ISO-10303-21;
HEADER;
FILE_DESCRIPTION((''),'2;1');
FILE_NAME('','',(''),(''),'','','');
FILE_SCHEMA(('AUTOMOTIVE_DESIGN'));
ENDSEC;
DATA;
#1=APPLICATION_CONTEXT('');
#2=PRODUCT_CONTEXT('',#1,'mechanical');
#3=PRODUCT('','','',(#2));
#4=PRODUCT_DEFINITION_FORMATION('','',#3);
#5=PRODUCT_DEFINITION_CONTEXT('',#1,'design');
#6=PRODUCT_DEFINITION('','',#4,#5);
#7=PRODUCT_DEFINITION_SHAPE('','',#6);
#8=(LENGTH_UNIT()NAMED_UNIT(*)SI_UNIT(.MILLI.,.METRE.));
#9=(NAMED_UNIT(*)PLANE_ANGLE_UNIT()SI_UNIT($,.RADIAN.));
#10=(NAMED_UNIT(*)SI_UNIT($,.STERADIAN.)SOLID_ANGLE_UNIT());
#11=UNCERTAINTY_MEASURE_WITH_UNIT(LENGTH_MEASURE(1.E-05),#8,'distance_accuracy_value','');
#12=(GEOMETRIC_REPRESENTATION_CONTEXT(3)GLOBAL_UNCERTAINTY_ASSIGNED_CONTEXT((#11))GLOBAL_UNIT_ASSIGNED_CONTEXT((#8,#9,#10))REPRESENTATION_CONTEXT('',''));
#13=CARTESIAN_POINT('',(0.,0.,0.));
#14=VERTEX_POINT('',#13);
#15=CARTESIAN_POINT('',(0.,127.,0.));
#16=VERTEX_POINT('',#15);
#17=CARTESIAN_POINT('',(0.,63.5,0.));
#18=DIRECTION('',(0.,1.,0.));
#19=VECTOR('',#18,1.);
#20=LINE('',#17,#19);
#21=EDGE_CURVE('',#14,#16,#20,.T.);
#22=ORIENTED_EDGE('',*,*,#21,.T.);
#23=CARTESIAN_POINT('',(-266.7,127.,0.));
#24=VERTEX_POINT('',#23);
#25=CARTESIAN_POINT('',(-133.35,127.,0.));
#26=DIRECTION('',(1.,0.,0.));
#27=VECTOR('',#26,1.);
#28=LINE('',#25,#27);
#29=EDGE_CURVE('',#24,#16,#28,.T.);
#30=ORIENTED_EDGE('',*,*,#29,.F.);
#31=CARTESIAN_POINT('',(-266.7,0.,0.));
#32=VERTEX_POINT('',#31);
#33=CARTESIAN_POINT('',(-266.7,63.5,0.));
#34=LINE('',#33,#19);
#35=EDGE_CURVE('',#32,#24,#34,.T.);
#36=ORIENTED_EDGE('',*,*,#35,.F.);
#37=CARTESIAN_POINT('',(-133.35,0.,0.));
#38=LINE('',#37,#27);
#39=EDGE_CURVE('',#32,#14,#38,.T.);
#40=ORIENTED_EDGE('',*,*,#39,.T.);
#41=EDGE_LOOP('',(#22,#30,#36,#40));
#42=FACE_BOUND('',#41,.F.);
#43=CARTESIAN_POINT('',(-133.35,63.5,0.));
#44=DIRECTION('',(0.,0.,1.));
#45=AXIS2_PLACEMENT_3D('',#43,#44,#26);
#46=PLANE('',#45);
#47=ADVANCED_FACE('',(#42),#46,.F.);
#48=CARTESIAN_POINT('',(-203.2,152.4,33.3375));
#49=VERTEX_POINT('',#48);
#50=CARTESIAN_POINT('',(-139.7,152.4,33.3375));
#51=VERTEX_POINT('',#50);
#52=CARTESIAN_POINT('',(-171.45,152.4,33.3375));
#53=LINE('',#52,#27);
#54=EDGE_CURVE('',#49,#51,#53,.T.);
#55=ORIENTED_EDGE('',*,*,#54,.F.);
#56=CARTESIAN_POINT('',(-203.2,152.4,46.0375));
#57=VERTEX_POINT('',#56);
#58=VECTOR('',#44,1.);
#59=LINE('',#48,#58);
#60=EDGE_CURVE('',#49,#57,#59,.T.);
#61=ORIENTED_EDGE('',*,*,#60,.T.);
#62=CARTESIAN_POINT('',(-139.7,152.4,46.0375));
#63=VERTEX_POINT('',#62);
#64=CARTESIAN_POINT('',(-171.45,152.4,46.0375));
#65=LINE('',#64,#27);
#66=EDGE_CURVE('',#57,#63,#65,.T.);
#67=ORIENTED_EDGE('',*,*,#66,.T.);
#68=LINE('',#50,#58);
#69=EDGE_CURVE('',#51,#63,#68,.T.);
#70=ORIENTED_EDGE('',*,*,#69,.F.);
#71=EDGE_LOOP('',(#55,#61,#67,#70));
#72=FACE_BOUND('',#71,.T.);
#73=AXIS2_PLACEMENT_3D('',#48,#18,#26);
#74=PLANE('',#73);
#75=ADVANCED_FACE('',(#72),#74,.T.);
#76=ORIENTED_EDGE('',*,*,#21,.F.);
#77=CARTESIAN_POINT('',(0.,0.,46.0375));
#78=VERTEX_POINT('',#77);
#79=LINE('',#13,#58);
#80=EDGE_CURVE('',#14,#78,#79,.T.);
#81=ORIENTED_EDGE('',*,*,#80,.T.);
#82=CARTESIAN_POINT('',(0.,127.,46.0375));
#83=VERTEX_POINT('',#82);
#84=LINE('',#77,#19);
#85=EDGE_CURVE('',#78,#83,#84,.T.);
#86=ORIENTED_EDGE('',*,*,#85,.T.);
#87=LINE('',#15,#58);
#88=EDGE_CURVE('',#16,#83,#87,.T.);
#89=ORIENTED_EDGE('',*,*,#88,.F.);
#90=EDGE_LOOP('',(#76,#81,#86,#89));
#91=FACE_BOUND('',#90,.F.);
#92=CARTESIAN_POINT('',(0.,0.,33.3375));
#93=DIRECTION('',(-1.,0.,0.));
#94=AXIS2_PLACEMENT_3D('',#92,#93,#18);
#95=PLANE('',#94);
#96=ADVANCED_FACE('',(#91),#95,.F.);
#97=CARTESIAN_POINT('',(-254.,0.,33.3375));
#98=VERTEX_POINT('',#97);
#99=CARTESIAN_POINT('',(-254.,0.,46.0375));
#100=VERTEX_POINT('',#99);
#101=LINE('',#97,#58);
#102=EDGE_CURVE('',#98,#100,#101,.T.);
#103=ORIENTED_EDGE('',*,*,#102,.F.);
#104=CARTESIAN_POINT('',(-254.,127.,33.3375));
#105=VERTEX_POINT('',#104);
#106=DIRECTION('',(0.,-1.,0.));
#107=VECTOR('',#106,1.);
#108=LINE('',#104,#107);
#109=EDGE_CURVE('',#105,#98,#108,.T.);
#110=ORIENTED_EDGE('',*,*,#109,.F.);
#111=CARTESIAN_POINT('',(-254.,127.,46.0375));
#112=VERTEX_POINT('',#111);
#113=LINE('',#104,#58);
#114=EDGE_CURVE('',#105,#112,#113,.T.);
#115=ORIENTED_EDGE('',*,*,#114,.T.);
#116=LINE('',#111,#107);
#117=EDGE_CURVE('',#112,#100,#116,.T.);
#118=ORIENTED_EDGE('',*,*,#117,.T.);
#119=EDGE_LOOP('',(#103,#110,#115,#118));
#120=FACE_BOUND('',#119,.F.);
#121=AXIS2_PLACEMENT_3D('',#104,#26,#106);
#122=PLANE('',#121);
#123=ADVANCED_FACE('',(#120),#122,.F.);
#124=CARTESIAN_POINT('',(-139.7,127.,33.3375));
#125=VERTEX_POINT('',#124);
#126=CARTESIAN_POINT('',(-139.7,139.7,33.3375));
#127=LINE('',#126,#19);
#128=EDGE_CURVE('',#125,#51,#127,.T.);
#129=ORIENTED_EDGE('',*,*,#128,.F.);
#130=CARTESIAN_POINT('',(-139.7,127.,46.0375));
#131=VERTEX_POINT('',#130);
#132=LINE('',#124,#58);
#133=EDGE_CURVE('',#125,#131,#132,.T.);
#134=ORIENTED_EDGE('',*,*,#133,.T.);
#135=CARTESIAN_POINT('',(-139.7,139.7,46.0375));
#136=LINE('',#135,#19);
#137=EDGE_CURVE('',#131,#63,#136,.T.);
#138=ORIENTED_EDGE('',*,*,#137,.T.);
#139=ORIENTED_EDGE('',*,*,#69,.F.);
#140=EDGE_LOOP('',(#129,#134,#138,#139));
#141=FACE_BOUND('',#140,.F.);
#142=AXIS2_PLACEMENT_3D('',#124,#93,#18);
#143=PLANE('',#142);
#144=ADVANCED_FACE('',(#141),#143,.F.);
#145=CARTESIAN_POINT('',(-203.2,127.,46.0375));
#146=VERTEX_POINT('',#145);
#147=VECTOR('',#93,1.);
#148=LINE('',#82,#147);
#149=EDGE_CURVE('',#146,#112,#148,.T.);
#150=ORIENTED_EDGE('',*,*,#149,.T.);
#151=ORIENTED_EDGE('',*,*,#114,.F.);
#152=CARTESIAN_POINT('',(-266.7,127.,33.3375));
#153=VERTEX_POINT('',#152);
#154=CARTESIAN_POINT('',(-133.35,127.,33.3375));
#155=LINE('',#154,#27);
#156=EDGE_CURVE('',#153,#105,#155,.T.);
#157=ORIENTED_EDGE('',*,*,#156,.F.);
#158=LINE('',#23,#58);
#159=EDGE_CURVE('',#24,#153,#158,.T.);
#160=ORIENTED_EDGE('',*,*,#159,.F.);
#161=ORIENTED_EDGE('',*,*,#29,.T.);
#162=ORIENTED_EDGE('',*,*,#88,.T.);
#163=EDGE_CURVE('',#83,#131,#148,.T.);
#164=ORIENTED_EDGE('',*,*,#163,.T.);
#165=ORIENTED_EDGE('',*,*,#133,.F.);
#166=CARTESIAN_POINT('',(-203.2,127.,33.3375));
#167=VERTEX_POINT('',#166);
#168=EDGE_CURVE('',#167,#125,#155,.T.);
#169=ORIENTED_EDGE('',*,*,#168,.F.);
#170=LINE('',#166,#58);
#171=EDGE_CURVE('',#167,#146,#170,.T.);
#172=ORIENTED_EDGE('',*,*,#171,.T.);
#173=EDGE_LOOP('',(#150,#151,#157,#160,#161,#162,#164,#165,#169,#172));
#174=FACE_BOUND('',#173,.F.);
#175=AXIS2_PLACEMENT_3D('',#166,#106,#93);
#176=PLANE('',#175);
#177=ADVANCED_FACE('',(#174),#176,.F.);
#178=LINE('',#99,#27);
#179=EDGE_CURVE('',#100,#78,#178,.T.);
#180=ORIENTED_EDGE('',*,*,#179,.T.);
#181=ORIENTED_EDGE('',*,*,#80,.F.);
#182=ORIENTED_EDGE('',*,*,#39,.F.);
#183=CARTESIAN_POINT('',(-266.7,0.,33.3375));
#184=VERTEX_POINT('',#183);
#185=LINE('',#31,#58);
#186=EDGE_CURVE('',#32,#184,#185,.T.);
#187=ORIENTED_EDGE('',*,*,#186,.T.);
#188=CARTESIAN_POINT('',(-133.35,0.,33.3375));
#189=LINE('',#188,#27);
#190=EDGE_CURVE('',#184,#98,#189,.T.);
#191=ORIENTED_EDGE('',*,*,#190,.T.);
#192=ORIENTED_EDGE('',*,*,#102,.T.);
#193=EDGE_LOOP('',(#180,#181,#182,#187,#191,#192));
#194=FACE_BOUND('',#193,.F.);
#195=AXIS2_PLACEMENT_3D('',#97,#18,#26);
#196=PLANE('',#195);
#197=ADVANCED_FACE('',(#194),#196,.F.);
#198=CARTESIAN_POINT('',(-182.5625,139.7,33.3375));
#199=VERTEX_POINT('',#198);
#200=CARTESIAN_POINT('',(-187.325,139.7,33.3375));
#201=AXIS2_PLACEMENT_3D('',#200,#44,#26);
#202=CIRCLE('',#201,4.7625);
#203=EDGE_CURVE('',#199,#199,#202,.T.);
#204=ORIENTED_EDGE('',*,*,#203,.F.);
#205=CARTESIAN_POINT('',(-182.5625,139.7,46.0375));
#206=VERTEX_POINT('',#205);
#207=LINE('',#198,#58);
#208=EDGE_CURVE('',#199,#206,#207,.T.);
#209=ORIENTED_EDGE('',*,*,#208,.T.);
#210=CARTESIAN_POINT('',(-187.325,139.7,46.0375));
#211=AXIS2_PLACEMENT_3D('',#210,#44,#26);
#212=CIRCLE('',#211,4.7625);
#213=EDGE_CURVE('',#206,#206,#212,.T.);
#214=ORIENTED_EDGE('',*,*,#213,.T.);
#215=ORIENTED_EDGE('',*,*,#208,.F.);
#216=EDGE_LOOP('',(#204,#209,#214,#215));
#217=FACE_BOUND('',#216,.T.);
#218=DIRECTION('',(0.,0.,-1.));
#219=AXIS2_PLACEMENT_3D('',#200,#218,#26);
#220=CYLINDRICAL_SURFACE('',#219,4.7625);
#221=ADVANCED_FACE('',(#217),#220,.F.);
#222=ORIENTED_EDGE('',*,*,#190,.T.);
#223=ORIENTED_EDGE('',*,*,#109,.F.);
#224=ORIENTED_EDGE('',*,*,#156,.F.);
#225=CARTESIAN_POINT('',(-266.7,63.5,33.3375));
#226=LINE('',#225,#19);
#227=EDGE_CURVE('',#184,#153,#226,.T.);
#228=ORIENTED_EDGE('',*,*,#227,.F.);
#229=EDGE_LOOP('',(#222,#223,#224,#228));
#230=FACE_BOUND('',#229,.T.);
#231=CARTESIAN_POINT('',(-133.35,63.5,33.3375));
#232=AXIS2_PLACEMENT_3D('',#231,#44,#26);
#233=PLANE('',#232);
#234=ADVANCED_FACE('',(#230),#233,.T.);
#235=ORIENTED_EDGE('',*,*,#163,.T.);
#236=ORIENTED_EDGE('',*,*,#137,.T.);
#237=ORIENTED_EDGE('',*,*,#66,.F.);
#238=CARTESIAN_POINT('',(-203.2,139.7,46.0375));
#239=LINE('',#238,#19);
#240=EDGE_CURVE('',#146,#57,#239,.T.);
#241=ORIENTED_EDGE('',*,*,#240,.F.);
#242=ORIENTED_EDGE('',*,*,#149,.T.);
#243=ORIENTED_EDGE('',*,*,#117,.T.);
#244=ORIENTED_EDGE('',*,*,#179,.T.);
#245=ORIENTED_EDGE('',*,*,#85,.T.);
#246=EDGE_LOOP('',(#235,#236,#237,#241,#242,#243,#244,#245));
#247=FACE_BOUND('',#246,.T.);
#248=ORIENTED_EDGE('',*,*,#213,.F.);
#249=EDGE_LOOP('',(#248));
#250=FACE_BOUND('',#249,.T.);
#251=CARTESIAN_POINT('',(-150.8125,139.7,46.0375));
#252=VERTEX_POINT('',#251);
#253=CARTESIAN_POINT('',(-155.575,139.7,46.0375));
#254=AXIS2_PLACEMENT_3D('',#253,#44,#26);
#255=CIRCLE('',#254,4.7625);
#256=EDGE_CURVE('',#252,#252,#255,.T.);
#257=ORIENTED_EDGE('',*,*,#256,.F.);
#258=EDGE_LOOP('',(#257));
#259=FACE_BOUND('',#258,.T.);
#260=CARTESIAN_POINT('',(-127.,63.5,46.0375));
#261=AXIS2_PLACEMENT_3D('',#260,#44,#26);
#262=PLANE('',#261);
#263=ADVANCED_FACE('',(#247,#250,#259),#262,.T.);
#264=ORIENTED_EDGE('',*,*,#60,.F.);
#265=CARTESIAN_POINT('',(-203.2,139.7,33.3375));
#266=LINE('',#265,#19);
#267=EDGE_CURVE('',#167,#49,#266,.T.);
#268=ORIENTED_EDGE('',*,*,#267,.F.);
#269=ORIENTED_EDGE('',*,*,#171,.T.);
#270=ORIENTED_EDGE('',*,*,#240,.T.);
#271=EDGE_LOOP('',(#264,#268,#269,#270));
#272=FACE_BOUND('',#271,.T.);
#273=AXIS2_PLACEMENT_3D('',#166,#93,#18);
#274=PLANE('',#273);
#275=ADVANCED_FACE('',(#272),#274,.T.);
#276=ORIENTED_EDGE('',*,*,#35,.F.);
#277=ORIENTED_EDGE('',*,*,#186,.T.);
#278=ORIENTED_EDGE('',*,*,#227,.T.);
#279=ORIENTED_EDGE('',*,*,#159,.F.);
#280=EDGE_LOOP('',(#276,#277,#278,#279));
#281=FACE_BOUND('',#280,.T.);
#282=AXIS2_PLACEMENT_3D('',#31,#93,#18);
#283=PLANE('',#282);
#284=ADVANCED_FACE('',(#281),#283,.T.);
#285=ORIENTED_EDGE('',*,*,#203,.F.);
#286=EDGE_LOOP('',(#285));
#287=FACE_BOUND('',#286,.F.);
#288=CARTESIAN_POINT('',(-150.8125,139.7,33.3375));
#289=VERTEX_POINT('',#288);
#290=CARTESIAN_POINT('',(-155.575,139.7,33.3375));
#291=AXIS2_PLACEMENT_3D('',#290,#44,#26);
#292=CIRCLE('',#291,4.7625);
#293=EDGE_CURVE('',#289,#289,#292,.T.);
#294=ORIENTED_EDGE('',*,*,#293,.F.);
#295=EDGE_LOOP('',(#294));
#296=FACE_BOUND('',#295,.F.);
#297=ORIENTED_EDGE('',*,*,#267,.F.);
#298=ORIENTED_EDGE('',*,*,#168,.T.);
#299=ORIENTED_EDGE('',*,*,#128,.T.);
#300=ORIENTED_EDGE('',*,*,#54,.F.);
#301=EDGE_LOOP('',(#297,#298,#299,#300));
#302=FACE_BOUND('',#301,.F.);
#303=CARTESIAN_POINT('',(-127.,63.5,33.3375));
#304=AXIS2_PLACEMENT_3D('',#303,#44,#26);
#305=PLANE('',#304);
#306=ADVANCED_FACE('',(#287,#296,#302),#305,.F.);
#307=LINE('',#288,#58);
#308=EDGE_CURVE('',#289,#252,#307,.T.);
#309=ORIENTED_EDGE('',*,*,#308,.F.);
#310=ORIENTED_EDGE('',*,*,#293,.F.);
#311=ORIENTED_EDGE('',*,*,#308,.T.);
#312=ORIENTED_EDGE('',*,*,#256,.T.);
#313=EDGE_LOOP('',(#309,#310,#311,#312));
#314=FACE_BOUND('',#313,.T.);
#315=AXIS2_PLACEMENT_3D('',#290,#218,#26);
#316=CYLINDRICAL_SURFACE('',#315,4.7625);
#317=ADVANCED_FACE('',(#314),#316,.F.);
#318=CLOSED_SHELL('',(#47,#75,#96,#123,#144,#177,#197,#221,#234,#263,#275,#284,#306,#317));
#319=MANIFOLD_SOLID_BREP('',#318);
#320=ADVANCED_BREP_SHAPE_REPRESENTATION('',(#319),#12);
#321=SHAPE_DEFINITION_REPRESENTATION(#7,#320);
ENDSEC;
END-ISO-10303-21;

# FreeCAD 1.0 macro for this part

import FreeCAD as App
import Part
import Sketcher

V = App.Vector
Q = App.Units.Quantity

doc = App.newDocument("Part")
params = doc.addObject("Spreadsheet::Sheet", "Params")
for row, (alias, value) in enumerate([
    ("sketch1_height", "5 in"),
    ("sketch1_width", "10.5 in"),
    ("pad1_length", "1.3125 in"),
    ("sketch2_width", "10 in"),
    ("sketch2_width2", "2 in"),
    ("sketch2_height", "5 in"),
    ("sketch2_height2", "1 in"),
    ("sketch2_diameter", "0.375 in"),
    ("pad2_length", "0.5 in"),
], start=1):
    params.set(f"A{row}", alias)
    params.set(f"B{row}", "=" + value)
    params.setAlias(f"B{row}", alias)

body = doc.addObject("PartDesign::Body", "Body")

sketch1 = body.newObject("Sketcher::SketchObject", "Sketch")
sketch1.AttachmentSupport = (doc.getObject("XY_Plane"), [""])
sketch1.MapMode = "FlatFace"
sketch1.addGeometry(Part.LineSegment(V(-267, 127, 0), V(-267, 0, 0)), False)
sketch1.addGeometry(Part.LineSegment(V(-267, 0, 0), V(0, 0, 0)), False)
sketch1.addGeometry(Part.LineSegment(V(0, 0, 0), V(0, 127, 0)), False)
sketch1.addGeometry(Part.LineSegment(V(0, 127, 0), V(-267, 127, 0)), False)
sketch1.addConstraint(Sketcher.Constraint("Coincident", 0, 2, 1, 1))
sketch1.addConstraint(Sketcher.Constraint("Coincident", 1, 2, 2, 1))
sketch1.addConstraint(Sketcher.Constraint("Coincident", 2, 2, 3, 1))
sketch1.addConstraint(Sketcher.Constraint("Coincident", 3, 2, 0, 1))
sketch1.addConstraint(Sketcher.Constraint("Vertical", 0))
sketch1.addConstraint(Sketcher.Constraint("Horizontal", 1))
sketch1.addConstraint(Sketcher.Constraint("Vertical", 2))
sketch1.addConstraint(Sketcher.Constraint("Horizontal", 3))
sketch1.addConstraint(Sketcher.Constraint("Coincident", 1, 2, -1, 1))
sketch1.addConstraint(Sketcher.Constraint("DistanceY", 0, 2, 0, 1, Q("5 in")))
sketch1.addConstraint(Sketcher.Constraint("DistanceX", 1, 1, 1, 2, Q("10.5 in")))
sketch1.setExpression("Constraints[9]", "Params.sketch1_height")
sketch1.setExpression("Constraints[10]", "Params.sketch1_width")
pad1 = body.newObject("PartDesign::Pad", "Pad")
pad1.Profile = sketch1
pad1.setExpression("Length", "Params.pad1_length")

sketch2 = body.newObject("Sketcher::SketchObject", "Sketch001")
sketch2.AttachmentSupport = (doc.getObject("XY_Plane"), [""])
sketch2.MapMode = "FlatFace"
sketch2.AttachmentOffset = App.Placement(V(0, 0, 1.3125 * 25.4), App.Rotation())
sketch2.addGeometry(Part.LineSegment(V(-254, 0, 0), V(0, 0, 0)), False)
sketch2.addGeometry(Part.LineSegment(V(0, 0, 0), V(0, 127, 0)), False)
sketch2.addGeometry(Part.LineSegment(V(0, 127, 0), V(-139.7, 127, 0)), False)
sketch2.addGeometry(Part.LineSegment(V(-139.7, 127, 0), V(-139.7, 152.4, 0)), False)
sketch2.addGeometry(Part.LineSegment(V(-139.7, 152.4, 0), V(-203.2, 152.4, 0)), False)
sketch2.addGeometry(Part.LineSegment(V(-203.2, 152.4, 0), V(-203.2, 127, 0)), False)
sketch2.addGeometry(Part.LineSegment(V(-203.2, 127, 0), V(-254, 127, 0)), False)
sketch2.addGeometry(Part.LineSegment(V(-254, 127, 0), V(-254, 0, 0)), False)
sketch2.addGeometry(Part.Circle(V(-187.3, 139.7, 0), V(0, 0, 1), 4.8), False)
sketch2.addGeometry(Part.Circle(V(-155.6, 139.7, 0), V(0, 0, 1), 4.8), False)
sketch2.addConstraint(Sketcher.Constraint("Coincident", 0, 2, 1, 1))
sketch2.addConstraint(Sketcher.Constraint("Coincident", 1, 2, 2, 1))
sketch2.addConstraint(Sketcher.Constraint("Coincident", 2, 2, 3, 1))
sketch2.addConstraint(Sketcher.Constraint("Coincident", 3, 2, 4, 1))
sketch2.addConstraint(Sketcher.Constraint("Coincident", 4, 2, 5, 1))
sketch2.addConstraint(Sketcher.Constraint("Coincident", 5, 2, 6, 1))
sketch2.addConstraint(Sketcher.Constraint("Coincident", 6, 2, 7, 1))
sketch2.addConstraint(Sketcher.Constraint("Coincident", 7, 2, 0, 1))
sketch2.addConstraint(Sketcher.Constraint("Horizontal", 0))
sketch2.addConstraint(Sketcher.Constraint("Vertical", 1))
sketch2.addConstraint(Sketcher.Constraint("Horizontal", 2))
sketch2.addConstraint(Sketcher.Constraint("Vertical", 3))
sketch2.addConstraint(Sketcher.Constraint("Horizontal", 4))
sketch2.addConstraint(Sketcher.Constraint("Vertical", 5))
sketch2.addConstraint(Sketcher.Constraint("Horizontal", 6))
sketch2.addConstraint(Sketcher.Constraint("Vertical", 7))
sketch2.addConstraint(Sketcher.Constraint("Coincident", 0, 2, -1, 1))
sketch2.addConstraint(Sketcher.Constraint("Equal", 8, 9))
sketch2.addConstraint(Sketcher.Constraint("Horizontal", 8, 3, 9, 3))
sketch2.addConstraint(Sketcher.Constraint("Horizontal", 2, 2, 5, 2))
sketch2.addConstraint(Sketcher.Constraint("DistanceX", 0, 1, 0, 2, Q("10 in")))
sketch2.addConstraint(Sketcher.Constraint("DistanceX", 6, 2, 6, 1, Q("2 in")))
sketch2.addConstraint(Sketcher.Constraint("DistanceY", 1, 1, 1, 2, Q("5 in")))
sketch2.addConstraint(Sketcher.Constraint("DistanceY", 3, 1, 3, 2, Q("1 in")))
sketch2.addConstraint(Sketcher.Constraint("Diameter", 8, Q("0.375 in")))
sketch2.addConstraint(Sketcher.Constraint("DistanceX", 2, 2, 2, 1, Q("5.5 in")))
sketch2.addConstraint(Sketcher.Constraint("DistanceY", -1, 1, 8, 3, Q("5.5 in")))
sketch2.addConstraint(Sketcher.Constraint("DistanceX", 8, 3, 9, 3, Q("1.25 in")))
sketch2.addConstraint(Sketcher.Constraint("DistanceX", 8, 3, -1, 1, Q("7.375 in")))
sketch2.setExpression("Constraints[20]", "Params.sketch2_width")
sketch2.setExpression("Constraints[21]", "Params.sketch2_width2")
sketch2.setExpression("Constraints[22]", "Params.sketch2_height")
sketch2.setExpression("Constraints[23]", "Params.sketch2_height2")
sketch2.setExpression("Constraints[24]", "Params.sketch2_diameter")
pad2 = body.newObject("PartDesign::Pad", "Pad001")
pad2.Profile = sketch2
pad2.setExpression("Length", "Params.pad2_length")

doc.recompute()
